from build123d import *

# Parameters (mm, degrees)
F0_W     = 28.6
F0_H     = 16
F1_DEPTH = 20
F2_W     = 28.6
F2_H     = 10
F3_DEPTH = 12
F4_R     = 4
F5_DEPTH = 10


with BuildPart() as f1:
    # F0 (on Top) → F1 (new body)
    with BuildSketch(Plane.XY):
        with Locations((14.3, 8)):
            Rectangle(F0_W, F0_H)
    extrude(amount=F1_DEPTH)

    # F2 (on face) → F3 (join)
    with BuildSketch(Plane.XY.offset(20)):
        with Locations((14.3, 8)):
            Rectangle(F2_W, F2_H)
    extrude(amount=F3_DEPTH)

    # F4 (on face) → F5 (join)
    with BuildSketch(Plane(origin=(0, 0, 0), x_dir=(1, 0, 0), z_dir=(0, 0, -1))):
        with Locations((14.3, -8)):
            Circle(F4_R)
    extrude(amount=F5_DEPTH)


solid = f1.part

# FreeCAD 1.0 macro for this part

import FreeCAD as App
import Part
import Sketcher

V = App.Vector
Q = App.Units.Quantity

doc = App.newDocument("Part")
params = doc.addObject("Spreadsheet::Sheet", "Params")
for row, (alias, value) in enumerate([
    ("sketch1_height", "16 mm"),
    ("sketch1_width", "28.6 mm"),
    ("pad1_length", "20 mm"),
    ("sketch2_height", "10 mm"),
    ("sketch2_width", "28.6 mm"),
    ("pad2_length", "12 mm"),
    ("sketch3_diameter", "8 mm"),
    ("pad3_length", "10 mm"),
], start=1):
    params.set(f"A{row}", alias)
    params.set(f"B{row}", "=" + value)
    params.setAlias(f"B{row}", alias)

body = doc.addObject("PartDesign::Body", "Body")

# Sketch on XY plane
sketch1 = body.newObject("Sketcher::SketchObject", "Sketch")
sketch1.AttachmentSupport = (doc.getObject("XY_Plane"), [""])
sketch1.MapMode = "FlatFace"
sketch1.addGeometry([
    Part.LineSegment(V(0, 16, 0), V(0, 0, 0)),
    Part.LineSegment(V(0, 0, 0), V(29, 0, 0)),
    Part.LineSegment(V(29, 0, 0), V(29, 16, 0)),
    Part.LineSegment(V(29, 16, 0), V(0, 16, 0)),
], False)
sketch1.addConstraint([
    Sketcher.Constraint("Coincident", 0, 2, 1, 1),
    Sketcher.Constraint("Coincident", 1, 2, 2, 1),
    Sketcher.Constraint("Coincident", 2, 2, 3, 1),
    Sketcher.Constraint("Coincident", 3, 2, 0, 1),
    Sketcher.Constraint("Vertical", 0),
    Sketcher.Constraint("Horizontal", 1),
    Sketcher.Constraint("Vertical", 2),
    Sketcher.Constraint("Horizontal", 3),
    Sketcher.Constraint("Coincident", 0, 2, -1, 1),
    Sketcher.Constraint("DistanceY", 0, 2, 0, 1, Q("16 mm")),
    Sketcher.Constraint("DistanceX", 1, 1, 1, 2, Q("28.6 mm")),
])
sketch1.setExpression("Constraints[9]", "Params.sketch1_height")
sketch1.setExpression("Constraints[10]", "Params.sketch1_width")
pad1 = body.newObject("PartDesign::Pad", "Pad")
pad1.Profile = sketch1
pad1.setExpression("Length", "Params.pad1_length")

# Sketch on XY plane
sketch2 = body.newObject("Sketcher::SketchObject", "Sketch001")
sketch2.AttachmentSupport = (doc.getObject("XY_Plane"), [""])
sketch2.MapMode = "FlatFace"
sketch2.AttachmentOffset = App.Placement(V(0, 0, 20), App.Rotation())
sketch2.addGeometry([
    Part.LineSegment(V(0, 13, 0), V(0, 3, 0)),
    Part.LineSegment(V(0, 3, 0), V(29, 3, 0)),
    Part.LineSegment(V(29, 3, 0), V(29, 13, 0)),
    Part.LineSegment(V(29, 13, 0), V(0, 13, 0)),
], False)
sketch2.addConstraint([
    Sketcher.Constraint("Coincident", 0, 2, 1, 1),
    Sketcher.Constraint("Coincident", 1, 2, 2, 1),
    Sketcher.Constraint("Coincident", 2, 2, 3, 1),
    Sketcher.Constraint("Coincident", 3, 2, 0, 1),
    Sketcher.Constraint("Vertical", 0),
    Sketcher.Constraint("Horizontal", 1),
    Sketcher.Constraint("Vertical", 2),
    Sketcher.Constraint("Horizontal", 3),
    Sketcher.Constraint("PointOnObject", 0, 2, -2),
    Sketcher.Constraint("DistanceY", 0, 2, 0, 1, Q("10 mm")),
    Sketcher.Constraint("DistanceX", 1, 1, 1, 2, Q("28.6 mm")),
    Sketcher.Constraint("DistanceY", -1, 1, 0, 2, Q("3 mm")),
])
sketch2.setExpression("Constraints[9]", "Params.sketch2_height")
sketch2.setExpression("Constraints[10]", "Params.sketch2_width")
pad2 = body.newObject("PartDesign::Pad", "Pad001")
pad2.Profile = sketch2
pad2.setExpression("Length", "Params.pad2_length")

# Sketch on XY plane
sketch3 = body.newObject("Sketcher::SketchObject", "Sketch002")
sketch3.AttachmentSupport = (doc.getObject("XY_Plane"), [""])
sketch3.MapMode = "FlatFace"
sketch3.addGeometry(Part.Circle(V(14.3, 8, 0), V(0, 0, 1), 4), False)
sketch3.addConstraint([
    Sketcher.Constraint("Diameter", 0, Q("8 mm")),
    Sketcher.Constraint("DistanceY", -1, 1, 0, 3, Q("8 mm")),
    Sketcher.Constraint("DistanceX", -1, 1, 0, 3, Q("14.3 mm")),
])
sketch3.setExpression("Constraints[0]", "Params.sketch3_diameter")
pad3 = body.newObject("PartDesign::Pad", "Pad002")
pad3.Profile = sketch3
pad3.setExpression("Length", "Params.pad3_length")
pad3.Reversed = True

doc.recompute()
